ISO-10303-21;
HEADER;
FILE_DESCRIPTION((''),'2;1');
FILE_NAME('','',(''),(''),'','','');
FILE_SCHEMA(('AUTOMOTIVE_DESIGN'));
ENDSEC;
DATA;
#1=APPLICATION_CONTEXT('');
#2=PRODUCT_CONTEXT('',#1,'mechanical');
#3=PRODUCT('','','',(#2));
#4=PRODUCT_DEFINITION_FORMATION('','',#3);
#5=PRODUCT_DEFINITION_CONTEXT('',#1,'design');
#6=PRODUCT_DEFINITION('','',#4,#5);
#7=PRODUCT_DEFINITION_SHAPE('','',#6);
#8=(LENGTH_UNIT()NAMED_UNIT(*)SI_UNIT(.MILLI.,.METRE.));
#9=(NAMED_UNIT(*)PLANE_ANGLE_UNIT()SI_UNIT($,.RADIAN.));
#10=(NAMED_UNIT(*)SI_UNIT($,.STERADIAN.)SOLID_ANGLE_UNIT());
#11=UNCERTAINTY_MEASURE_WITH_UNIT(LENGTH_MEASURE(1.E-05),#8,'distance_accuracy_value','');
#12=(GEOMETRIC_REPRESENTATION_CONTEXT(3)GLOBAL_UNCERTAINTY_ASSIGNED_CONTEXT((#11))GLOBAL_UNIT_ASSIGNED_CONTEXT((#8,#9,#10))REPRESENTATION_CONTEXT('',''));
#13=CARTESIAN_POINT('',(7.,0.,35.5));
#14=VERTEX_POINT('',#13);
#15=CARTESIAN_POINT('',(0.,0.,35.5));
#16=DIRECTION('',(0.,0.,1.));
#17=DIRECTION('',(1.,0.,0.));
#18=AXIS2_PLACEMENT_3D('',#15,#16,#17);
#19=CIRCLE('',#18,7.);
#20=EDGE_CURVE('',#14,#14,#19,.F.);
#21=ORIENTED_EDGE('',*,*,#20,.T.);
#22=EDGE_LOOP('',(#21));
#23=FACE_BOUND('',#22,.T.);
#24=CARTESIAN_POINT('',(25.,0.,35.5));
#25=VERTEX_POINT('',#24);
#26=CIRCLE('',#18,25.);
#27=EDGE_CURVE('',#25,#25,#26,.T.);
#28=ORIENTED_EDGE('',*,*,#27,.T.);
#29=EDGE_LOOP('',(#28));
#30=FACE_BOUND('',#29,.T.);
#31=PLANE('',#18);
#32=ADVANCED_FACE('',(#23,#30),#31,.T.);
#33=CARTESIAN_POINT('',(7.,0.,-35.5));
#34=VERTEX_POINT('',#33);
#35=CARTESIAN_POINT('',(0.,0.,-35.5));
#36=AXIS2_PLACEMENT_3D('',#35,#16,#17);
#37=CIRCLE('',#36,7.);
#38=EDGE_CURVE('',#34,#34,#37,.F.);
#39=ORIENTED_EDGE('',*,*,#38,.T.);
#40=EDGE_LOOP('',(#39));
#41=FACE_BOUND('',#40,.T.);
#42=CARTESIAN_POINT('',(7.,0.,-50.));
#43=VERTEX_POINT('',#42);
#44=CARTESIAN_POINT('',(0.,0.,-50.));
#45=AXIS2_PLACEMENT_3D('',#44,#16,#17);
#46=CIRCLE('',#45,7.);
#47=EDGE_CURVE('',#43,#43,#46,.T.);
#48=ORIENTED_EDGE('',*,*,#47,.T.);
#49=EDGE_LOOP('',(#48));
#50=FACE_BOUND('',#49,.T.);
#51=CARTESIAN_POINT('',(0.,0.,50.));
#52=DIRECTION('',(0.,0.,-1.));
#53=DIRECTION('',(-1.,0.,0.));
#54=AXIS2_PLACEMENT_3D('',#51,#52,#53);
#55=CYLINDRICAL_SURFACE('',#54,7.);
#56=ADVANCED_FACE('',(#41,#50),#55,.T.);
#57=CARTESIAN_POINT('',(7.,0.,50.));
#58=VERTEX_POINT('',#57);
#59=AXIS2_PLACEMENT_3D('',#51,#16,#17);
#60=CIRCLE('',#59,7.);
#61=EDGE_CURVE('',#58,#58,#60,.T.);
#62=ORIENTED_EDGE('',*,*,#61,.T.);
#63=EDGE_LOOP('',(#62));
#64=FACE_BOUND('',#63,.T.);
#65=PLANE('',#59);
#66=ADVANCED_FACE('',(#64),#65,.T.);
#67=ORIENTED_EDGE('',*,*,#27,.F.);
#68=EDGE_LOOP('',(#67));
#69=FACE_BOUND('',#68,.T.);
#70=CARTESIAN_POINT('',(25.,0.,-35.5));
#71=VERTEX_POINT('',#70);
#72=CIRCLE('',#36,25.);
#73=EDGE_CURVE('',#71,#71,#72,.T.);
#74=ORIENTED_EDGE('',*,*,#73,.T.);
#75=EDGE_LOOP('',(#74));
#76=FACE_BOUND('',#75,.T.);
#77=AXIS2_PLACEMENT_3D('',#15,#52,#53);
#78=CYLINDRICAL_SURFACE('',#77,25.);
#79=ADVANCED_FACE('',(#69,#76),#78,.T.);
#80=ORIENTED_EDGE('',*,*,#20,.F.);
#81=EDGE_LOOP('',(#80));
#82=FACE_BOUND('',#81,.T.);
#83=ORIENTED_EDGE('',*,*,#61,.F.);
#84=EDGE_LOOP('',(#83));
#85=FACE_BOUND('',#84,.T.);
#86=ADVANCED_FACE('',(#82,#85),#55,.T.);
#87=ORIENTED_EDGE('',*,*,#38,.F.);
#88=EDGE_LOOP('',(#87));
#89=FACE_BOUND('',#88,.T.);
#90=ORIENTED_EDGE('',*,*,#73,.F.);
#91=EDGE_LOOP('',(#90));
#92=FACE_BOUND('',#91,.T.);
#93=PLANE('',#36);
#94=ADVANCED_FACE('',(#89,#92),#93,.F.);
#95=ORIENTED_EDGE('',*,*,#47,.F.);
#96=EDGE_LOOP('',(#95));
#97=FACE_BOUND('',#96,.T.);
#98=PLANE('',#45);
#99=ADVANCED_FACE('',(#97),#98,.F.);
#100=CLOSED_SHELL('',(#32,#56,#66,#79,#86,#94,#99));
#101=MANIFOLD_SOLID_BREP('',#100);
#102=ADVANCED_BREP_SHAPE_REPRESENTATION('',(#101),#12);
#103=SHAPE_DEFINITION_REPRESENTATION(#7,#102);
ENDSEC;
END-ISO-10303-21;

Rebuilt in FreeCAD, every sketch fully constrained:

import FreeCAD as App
import Part
import Sketcher

V = App.Vector
Q = App.Units.Quantity

doc = App.newDocument("Part")
params = doc.addObject("Spreadsheet::Sheet", "Params")
for row, (alias, value) in enumerate([
    ("sketch1_diameter", "50 mm"),
    ("pad1_length", "71 mm"),
    ("sketch2_diameter", "14 mm"),
    ("pad2_length", "100 mm"),
], start=1):
    params.set(f"A{row}", alias)
    params.set(f"B{row}", "=" + value)
    params.setAlias(f"B{row}", alias)

body = doc.addObject("PartDesign::Body", "Body")

# Sketch on XY plane
sketch1 = body.newObject("Sketcher::SketchObject", "Sketch")
sketch1.AttachmentSupport = (doc.getObject("XY_Plane"), [""])
sketch1.MapMode = "FlatFace"
sketch1.addGeometry(Part.Circle(V(0, 0, 0), V(0, 0, 1), 25), False)
sketch1.addConstraint([
    Sketcher.Constraint("Coincident", 0, 3, -1, 1),
    Sketcher.Constraint("Diameter", 0, Q("50 mm")),
])
sketch1.setExpression("Constraints[1]", "Params.sketch1_diameter")
pad1 = body.newObject("PartDesign::Pad", "Pad")
pad1.Profile = sketch1
pad1.setExpression("Length", "Params.pad1_length")
pad1.Midplane = True

# Sketch on XY plane
sketch2 = body.newObject("Sketcher::SketchObject", "Sketch001")
sketch2.AttachmentSupport = (doc.getObject("XY_Plane"), [""])
sketch2.MapMode = "FlatFace"
sketch2.addGeometry(Part.Circle(V(0, 0, 0), V(0, 0, 1), 7), False)
sketch2.addConstraint([
    Sketcher.Constraint("Coincident", 0, 3, -1, 1),
    Sketcher.Constraint("Diameter", 0, Q("14 mm")),
])
sketch2.setExpression("Constraints[1]", "Params.sketch2_diameter")
pad2 = body.newObject("PartDesign::Pad", "Pad001")
pad2.Profile = sketch2
pad2.setExpression("Length", "Params.pad2_length")
pad2.Midplane = True

doc.recompute()
